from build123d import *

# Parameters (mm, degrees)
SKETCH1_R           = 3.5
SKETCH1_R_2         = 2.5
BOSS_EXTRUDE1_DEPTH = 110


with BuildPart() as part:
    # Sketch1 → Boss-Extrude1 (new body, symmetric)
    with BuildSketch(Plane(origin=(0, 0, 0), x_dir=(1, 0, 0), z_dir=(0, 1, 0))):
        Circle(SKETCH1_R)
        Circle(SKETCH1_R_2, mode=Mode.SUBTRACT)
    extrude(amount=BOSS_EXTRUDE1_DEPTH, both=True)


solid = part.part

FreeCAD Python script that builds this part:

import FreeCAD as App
import Part
import Sketcher
from FreeCAD import Vector

doc = App.newDocument("Part")
body = doc.addObject("PartDesign::Body", "Body")

# Sketch on XZ plane
sketch1 = body.newObject("Sketcher::SketchObject", "Sketch")
sketch1.AttachmentSupport = (doc.getObject("XZ_Plane"), [""])
sketch1.MapMode = "FlatFace"
sketch1.addGeometry([
    Part.Circle(Vector(0, 0, 0), Vector(0, 0, 1), 3.5),
    Part.Circle(Vector(0, 0, 0), Vector(0, 0, 1), 2.5),
], False)
sketch1.addConstraint([
    Sketcher.Constraint("Coincident", 0, 3, -1, 1),
    Sketcher.Constraint("Coincident", 1, 3, -1, 1),
    Sketcher.Constraint("Diameter", 0, 7.0),
    Sketcher.Constraint("Diameter", 1, 5.0),
])
pad1 = body.newObject("PartDesign::Pad", "Pad")
pad1.Profile = sketch1
pad1.Length = 220
pad1.Midplane = True

doc.recompute()
